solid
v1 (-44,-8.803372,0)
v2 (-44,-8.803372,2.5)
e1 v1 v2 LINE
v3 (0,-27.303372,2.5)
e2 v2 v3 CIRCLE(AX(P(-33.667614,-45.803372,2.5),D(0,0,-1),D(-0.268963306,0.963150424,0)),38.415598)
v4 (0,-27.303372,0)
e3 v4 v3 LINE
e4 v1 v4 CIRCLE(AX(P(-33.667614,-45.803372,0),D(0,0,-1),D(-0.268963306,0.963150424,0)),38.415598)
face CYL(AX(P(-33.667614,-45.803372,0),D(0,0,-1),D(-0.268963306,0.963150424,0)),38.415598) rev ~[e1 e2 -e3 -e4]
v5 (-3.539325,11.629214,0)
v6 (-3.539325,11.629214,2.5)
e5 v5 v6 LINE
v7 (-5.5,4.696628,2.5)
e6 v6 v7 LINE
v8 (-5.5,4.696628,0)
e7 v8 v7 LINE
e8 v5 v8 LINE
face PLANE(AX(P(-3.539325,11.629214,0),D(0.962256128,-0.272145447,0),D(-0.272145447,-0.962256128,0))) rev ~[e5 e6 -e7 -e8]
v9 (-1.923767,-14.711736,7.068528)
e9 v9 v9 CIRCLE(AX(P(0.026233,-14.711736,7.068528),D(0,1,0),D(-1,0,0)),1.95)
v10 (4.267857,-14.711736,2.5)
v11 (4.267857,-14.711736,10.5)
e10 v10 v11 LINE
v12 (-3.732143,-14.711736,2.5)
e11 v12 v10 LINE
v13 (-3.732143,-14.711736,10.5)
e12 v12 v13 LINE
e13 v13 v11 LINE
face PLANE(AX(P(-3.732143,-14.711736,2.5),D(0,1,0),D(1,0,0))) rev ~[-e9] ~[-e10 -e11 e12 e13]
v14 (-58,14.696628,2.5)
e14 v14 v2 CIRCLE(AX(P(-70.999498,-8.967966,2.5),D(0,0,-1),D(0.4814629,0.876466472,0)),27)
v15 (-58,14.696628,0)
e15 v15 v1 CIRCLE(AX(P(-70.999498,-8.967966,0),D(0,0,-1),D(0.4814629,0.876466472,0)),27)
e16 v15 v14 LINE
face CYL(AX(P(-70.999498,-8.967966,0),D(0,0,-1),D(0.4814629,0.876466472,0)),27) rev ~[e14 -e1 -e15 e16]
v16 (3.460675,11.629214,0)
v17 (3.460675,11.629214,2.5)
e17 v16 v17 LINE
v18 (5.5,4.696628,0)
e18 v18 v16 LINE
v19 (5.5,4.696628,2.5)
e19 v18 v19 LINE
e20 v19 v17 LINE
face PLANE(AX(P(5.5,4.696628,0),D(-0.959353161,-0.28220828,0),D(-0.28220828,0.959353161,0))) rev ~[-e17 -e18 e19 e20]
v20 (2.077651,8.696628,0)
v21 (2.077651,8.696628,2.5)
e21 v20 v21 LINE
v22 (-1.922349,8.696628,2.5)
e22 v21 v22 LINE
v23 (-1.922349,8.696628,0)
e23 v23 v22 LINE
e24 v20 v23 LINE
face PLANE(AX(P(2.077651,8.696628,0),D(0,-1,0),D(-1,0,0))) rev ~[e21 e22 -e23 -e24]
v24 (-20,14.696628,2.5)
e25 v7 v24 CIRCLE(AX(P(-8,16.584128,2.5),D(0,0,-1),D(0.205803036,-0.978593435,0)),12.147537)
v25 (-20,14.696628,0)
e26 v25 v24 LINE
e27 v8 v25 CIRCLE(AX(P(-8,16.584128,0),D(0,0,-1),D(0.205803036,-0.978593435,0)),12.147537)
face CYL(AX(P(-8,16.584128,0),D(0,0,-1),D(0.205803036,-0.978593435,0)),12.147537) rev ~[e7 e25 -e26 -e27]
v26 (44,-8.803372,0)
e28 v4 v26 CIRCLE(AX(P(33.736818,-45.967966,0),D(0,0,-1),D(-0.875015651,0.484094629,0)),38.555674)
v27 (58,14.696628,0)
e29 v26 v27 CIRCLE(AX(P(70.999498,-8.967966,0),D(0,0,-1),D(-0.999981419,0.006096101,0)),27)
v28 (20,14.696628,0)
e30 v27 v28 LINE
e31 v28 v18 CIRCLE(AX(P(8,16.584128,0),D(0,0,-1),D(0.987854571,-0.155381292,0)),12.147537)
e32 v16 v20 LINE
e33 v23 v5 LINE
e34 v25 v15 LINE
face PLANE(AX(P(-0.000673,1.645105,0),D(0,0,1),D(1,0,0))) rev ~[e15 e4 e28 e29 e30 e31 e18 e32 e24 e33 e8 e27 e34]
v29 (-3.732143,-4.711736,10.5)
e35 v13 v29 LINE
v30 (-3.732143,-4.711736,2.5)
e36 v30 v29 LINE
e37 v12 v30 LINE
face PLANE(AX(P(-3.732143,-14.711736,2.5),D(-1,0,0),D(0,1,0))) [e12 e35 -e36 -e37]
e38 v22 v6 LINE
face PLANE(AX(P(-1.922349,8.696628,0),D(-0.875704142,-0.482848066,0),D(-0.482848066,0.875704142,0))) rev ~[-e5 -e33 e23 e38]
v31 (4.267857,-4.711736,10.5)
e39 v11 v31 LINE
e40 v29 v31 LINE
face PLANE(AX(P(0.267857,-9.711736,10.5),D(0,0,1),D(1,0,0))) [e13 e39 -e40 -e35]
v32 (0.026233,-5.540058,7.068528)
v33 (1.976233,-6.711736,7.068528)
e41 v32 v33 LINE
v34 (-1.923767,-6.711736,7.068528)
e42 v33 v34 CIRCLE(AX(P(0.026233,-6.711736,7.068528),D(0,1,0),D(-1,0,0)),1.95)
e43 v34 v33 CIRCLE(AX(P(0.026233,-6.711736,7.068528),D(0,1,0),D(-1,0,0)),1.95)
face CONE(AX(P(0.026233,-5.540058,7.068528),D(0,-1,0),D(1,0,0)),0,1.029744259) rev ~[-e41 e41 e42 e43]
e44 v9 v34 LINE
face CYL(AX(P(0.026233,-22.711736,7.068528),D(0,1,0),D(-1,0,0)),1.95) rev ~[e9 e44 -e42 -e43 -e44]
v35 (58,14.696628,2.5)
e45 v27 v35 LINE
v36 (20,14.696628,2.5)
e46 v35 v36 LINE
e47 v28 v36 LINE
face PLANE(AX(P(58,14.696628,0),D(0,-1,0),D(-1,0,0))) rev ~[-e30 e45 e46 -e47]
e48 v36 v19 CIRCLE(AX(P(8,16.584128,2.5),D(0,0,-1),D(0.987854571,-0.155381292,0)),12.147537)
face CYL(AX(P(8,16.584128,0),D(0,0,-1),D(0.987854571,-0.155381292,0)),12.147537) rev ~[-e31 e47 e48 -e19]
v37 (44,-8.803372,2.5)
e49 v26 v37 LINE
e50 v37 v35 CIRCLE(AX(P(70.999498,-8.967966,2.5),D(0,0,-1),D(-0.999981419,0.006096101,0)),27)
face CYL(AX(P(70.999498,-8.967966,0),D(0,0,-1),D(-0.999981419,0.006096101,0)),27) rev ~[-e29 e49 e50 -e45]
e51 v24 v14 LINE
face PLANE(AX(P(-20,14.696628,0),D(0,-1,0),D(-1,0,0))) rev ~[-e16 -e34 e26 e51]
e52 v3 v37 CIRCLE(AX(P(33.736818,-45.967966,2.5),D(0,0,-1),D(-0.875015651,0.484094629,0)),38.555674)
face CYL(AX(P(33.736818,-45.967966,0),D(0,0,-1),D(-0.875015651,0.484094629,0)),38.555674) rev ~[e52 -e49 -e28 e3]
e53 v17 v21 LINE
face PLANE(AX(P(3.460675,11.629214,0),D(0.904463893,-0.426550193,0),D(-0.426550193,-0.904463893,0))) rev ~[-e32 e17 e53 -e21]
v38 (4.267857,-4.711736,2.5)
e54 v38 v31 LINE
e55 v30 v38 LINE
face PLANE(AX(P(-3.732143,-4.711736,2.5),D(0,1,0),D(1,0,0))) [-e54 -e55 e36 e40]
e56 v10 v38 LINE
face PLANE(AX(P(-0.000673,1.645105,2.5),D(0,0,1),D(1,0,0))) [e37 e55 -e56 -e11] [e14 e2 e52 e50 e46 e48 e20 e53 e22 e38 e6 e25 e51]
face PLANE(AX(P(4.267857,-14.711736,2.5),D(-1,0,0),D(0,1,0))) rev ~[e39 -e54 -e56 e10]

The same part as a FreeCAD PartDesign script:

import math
import FreeCAD as App
import Part
import Sketcher
Q = App.Units.Quantity


def add_polygon(sketch, points):
    """Adds a closed chain of lines whose ends are joined by coincident constraints."""
    first, n = sketch.GeometryCount, len(points)
    for a, b in zip(points, points[1:] + points[:1]):
        sketch.addGeometry(Part.LineSegment(App.Vector(*a, 0), App.Vector(*b, 0)), False)
    for i in range(n):
        sketch.addConstraint(Sketcher.Constraint("Coincident", first + i, 2, first + (i + 1) % n, 1))

doc = App.newDocument("Part")
params = doc.addObject("Spreadsheet::Sheet", "Params")
for row, (alias, value) in enumerate([
    ("sketch1_radius", "27 mm"),
    ("sketch1_width", "38 mm"),
    ("sketch1_width2", "4 mm"),
    ("pad1_length", "2.5 mm"),
    ("sketch2_width", "8 mm"),
    ("sketch2_height", "10 mm"),
    ("pad2_length", "8 mm"),
    ("sketch3_diameter", "3.9 mm"),
    ("hole_diameter", "3.9 mm"),
    ("hole_depth", "8 mm"),
], start=1):
    params.set(f"A{row}", alias)
    params.set(f"B{row}", "=" + value)
    params.setAlias(f"B{row}", alias)

body = doc.addObject("PartDesign::Body", "Body")

sketch1 = doc.addObject("Sketcher::SketchObject", "Sketch")
body.addObject(sketch1)
sketch1.AttachmentSupport = (doc.XY_Plane, [""])
sketch1.MapMode = "FlatFace"
sketch1.addGeometry([
    Part.LineSegment(App.Vector(-20, 14.7, 0), App.Vector(-58, 14.7, 0)),
    Part.ArcOfCircle(Part.Circle(App.Vector(-71, -9, 0), App.Vector(0, 0, 1), 27), math.radians(0), math.radians(61)),
    Part.ArcOfCircle(Part.Circle(App.Vector(-33.7, -45.8, 0), App.Vector(0, 0, 1), 38.4), math.radians(29), math.radians(106)),
    Part.ArcOfCircle(Part.Circle(App.Vector(33.7, -46, 0), App.Vector(0, 0, 1), 38.6), math.radians(75), math.radians(151)),
    Part.ArcOfCircle(Part.Circle(App.Vector(71, -9, 0), App.Vector(0, 0, 1), 27), math.radians(119), math.radians(180)),
    Part.LineSegment(App.Vector(58, 14.7, 0), App.Vector(20, 14.7, 0)),
    Part.ArcOfCircle(Part.Circle(App.Vector(8, 16.6, 0), App.Vector(0, 0, 1), 12.1), math.radians(-102), math.radians(-9)),
    Part.LineSegment(App.Vector(5.5, 4.7, 0), App.Vector(3.5, 11.6, 0)),
    Part.LineSegment(App.Vector(3.5, 11.6, 0), App.Vector(2.1, 8.7, 0)),
    Part.LineSegment(App.Vector(2.1, 8.7, 0), App.Vector(-1.9, 8.7, 0)),
    Part.LineSegment(App.Vector(-1.9, 8.7, 0), App.Vector(-3.5, 11.6, 0)),
    Part.LineSegment(App.Vector(-3.5, 11.6, 0), App.Vector(-5.5, 4.7, 0)),
    Part.ArcOfCircle(Part.Circle(App.Vector(-8, 16.6, 0), App.Vector(0, 0, 1), 12.1), math.radians(-171), math.radians(-78)),
], False)
sketch1.addConstraint([
    Sketcher.Constraint("Coincident", 0, 2, 1, 2),
    Sketcher.Constraint("Coincident", 1, 1, 2, 2),
    Sketcher.Constraint("Coincident", 2, 1, 3, 2),
    Sketcher.Constraint("Coincident", 3, 1, 4, 2),
    Sketcher.Constraint("Coincident", 4, 1, 5, 1),
    Sketcher.Constraint("Coincident", 5, 2, 6, 2),
    Sketcher.Constraint("Coincident", 6, 1, 7, 1),
    Sketcher.Constraint("Coincident", 7, 2, 8, 1),
    Sketcher.Constraint("Coincident", 8, 2, 9, 1),
    Sketcher.Constraint("Coincident", 9, 2, 10, 1),
    Sketcher.Constraint("Coincident", 10, 2, 11, 1),
    Sketcher.Constraint("Coincident", 11, 2, 12, 2),
    Sketcher.Constraint("Coincident", 12, 1, 0, 1),
    Sketcher.Constraint("Horizontal", 0),
    Sketcher.Constraint("Horizontal", 5),
    Sketcher.Constraint("Horizontal", 9),
    Sketcher.Constraint("Equal", 1, 4),
    Sketcher.Constraint("Equal", 6, 12),
    Sketcher.Constraint("Symmetric", 1, 3, 4, 3, -2),
    Sketcher.Constraint("Symmetric", 6, 3, 12, 3, -2),
    Sketcher.Constraint("PointOnObject", 2, 1, -2),
    Sketcher.Constraint("Horizontal", 1, 1, 3, 1),
    Sketcher.Constraint("Horizontal", 0, 2, 4, 1),
    Sketcher.Constraint("Horizontal", 7, 2, 10, 2),
    Sketcher.Constraint("Horizontal", 6, 1, 11, 2),
    Sketcher.Constraint("Radius", 1, Q("27 mm")),
    Sketcher.Constraint("DistanceX", 0, 2, 0, 1, Q("38 mm")),
    Sketcher.Constraint("DistanceX", 9, 2, 9, 1, Q("4 mm")),
    Sketcher.Constraint("DistanceX", -1, 1, 6, 3, Q("8 mm")),
    Sketcher.Constraint("DistanceX", 0, 2, -1, 1, Q("58 mm")),
    Sketcher.Constraint("DistanceX", 1, 1, -1, 1, Q("44 mm")),
    Sketcher.Constraint("DistanceY", 3, 3, 1, 3, Q("37 mm")),
    Sketcher.Constraint("DistanceY", 2, 3, 1, 1, Q("37 mm")),
    Sketcher.Constraint("DistanceY", 2, 1, 5, 2, Q("42 mm")),
    Sketcher.Constraint("DistanceY", 6, 1, 5, 2, Q("10 mm")),
    Sketcher.Constraint("DistanceY", 6, 1, 8, 2, Q("4 mm")),
    Sketcher.Constraint("DistanceX", 10, 2, 7, 2, Q("7 mm")),
    Sketcher.Constraint("DistanceX", 11, 2, 6, 1, Q("11 mm")),
    Sketcher.Constraint("Radius", 2, Q("38.415598 mm")),
    Sketcher.Constraint("Distance", 7, Q("7.226312 mm")),
    Sketcher.Constraint("Distance", 10, Q("3.348831 mm")),
    Sketcher.Constraint("Distance", 11, Q("7.204511 mm")),
    Sketcher.Constraint("DistanceY", 2, 3, -1, 1, Q("45.803372 mm")),
])
sketch1.setExpression("Constraints[25]", "Params.sketch1_radius")
sketch1.setExpression("Constraints[26]", "Params.sketch1_width")
sketch1.setExpression("Constraints[27]", "Params.sketch1_width2")
pad1 = doc.addObject("PartDesign::Pad", "Pad")
body.addObject(pad1)
pad1.Profile = sketch1
pad1.setExpression("Length", "Params.pad1_length")

sketch2 = doc.addObject("Sketcher::SketchObject", "Sketch001")
body.addObject(sketch2)
sketch2.AttachmentSupport = (doc.XY_Plane, [""])
sketch2.MapMode = "FlatFace"
sketch2.AttachmentOffset = App.Placement(App.Vector(0, 0, 2.5), App.Rotation())
add_polygon(sketch2, [(-4, -5), (-4, -15), (4, -15), (4, -5)])
sketch2.addConstraint([
    Sketcher.Constraint("Vertical", 0),
    Sketcher.Constraint("Horizontal", 1),
    Sketcher.Constraint("Vertical", 2),
    Sketcher.Constraint("Horizontal", 3),
    Sketcher.Constraint("DistanceX", 1, 1, 1, 2, Q("8 mm")),
    Sketcher.Constraint("DistanceY", 0, 2, 0, 1, Q("10 mm")),
    Sketcher.Constraint("DistanceX", 0, 2, -1, 1, Q("3.732143 mm")),
    Sketcher.Constraint("DistanceY", 0, 2, -1, 1, Q("14.711736 mm")),
])
sketch2.setExpression("Constraints[8]", "Params.sketch2_width")
sketch2.setExpression("Constraints[9]", "Params.sketch2_height")
pad2 = doc.addObject("PartDesign::Pad", "Pad001")
body.addObject(pad2)
pad2.Profile = sketch2
pad2.setExpression("Length", "Params.pad2_length")

sketch3 = doc.addObject("Sketcher::SketchObject", "Sketch002")
body.addObject(sketch3)
sketch3.AttachmentSupport = (doc.XZ_Plane, [""])
sketch3.MapMode = "FlatFace"
sketch3.AttachmentOffset = App.Placement(App.Vector(0, 0, 14.711736), App.Rotation())
sketch3.addGeometry(Part.Circle(App.Vector(0, 7.1, 0), App.Vector(0, 0, 1), 1.9), False)
sketch3.addConstraint([
    Sketcher.Constraint("Diameter", 0, Q("3.9 mm")),
    Sketcher.Constraint("DistanceX", -1, 1, 0, 3, Q("0.026233 mm")),
    Sketcher.Constraint("DistanceY", -1, 1, 0, 3, Q("7.068528 mm")),
])
sketch3.setExpression("Constraints[0]", "Params.sketch3_diameter")
doc.recompute()
hole = doc.addObject("PartDesign::Hole", "Hole")
body.addObject(hole)
hole.Profile = sketch3
hole.ThreadType = "None"
hole.setExpression("Diameter", "Params.hole_diameter")
hole.DepthType = "Dimension"
hole.setExpression("Depth", "Params.hole_depth")
hole.DrillPoint = "Angled"
hole.DrillPointAngle = 118

doc.recompute()
